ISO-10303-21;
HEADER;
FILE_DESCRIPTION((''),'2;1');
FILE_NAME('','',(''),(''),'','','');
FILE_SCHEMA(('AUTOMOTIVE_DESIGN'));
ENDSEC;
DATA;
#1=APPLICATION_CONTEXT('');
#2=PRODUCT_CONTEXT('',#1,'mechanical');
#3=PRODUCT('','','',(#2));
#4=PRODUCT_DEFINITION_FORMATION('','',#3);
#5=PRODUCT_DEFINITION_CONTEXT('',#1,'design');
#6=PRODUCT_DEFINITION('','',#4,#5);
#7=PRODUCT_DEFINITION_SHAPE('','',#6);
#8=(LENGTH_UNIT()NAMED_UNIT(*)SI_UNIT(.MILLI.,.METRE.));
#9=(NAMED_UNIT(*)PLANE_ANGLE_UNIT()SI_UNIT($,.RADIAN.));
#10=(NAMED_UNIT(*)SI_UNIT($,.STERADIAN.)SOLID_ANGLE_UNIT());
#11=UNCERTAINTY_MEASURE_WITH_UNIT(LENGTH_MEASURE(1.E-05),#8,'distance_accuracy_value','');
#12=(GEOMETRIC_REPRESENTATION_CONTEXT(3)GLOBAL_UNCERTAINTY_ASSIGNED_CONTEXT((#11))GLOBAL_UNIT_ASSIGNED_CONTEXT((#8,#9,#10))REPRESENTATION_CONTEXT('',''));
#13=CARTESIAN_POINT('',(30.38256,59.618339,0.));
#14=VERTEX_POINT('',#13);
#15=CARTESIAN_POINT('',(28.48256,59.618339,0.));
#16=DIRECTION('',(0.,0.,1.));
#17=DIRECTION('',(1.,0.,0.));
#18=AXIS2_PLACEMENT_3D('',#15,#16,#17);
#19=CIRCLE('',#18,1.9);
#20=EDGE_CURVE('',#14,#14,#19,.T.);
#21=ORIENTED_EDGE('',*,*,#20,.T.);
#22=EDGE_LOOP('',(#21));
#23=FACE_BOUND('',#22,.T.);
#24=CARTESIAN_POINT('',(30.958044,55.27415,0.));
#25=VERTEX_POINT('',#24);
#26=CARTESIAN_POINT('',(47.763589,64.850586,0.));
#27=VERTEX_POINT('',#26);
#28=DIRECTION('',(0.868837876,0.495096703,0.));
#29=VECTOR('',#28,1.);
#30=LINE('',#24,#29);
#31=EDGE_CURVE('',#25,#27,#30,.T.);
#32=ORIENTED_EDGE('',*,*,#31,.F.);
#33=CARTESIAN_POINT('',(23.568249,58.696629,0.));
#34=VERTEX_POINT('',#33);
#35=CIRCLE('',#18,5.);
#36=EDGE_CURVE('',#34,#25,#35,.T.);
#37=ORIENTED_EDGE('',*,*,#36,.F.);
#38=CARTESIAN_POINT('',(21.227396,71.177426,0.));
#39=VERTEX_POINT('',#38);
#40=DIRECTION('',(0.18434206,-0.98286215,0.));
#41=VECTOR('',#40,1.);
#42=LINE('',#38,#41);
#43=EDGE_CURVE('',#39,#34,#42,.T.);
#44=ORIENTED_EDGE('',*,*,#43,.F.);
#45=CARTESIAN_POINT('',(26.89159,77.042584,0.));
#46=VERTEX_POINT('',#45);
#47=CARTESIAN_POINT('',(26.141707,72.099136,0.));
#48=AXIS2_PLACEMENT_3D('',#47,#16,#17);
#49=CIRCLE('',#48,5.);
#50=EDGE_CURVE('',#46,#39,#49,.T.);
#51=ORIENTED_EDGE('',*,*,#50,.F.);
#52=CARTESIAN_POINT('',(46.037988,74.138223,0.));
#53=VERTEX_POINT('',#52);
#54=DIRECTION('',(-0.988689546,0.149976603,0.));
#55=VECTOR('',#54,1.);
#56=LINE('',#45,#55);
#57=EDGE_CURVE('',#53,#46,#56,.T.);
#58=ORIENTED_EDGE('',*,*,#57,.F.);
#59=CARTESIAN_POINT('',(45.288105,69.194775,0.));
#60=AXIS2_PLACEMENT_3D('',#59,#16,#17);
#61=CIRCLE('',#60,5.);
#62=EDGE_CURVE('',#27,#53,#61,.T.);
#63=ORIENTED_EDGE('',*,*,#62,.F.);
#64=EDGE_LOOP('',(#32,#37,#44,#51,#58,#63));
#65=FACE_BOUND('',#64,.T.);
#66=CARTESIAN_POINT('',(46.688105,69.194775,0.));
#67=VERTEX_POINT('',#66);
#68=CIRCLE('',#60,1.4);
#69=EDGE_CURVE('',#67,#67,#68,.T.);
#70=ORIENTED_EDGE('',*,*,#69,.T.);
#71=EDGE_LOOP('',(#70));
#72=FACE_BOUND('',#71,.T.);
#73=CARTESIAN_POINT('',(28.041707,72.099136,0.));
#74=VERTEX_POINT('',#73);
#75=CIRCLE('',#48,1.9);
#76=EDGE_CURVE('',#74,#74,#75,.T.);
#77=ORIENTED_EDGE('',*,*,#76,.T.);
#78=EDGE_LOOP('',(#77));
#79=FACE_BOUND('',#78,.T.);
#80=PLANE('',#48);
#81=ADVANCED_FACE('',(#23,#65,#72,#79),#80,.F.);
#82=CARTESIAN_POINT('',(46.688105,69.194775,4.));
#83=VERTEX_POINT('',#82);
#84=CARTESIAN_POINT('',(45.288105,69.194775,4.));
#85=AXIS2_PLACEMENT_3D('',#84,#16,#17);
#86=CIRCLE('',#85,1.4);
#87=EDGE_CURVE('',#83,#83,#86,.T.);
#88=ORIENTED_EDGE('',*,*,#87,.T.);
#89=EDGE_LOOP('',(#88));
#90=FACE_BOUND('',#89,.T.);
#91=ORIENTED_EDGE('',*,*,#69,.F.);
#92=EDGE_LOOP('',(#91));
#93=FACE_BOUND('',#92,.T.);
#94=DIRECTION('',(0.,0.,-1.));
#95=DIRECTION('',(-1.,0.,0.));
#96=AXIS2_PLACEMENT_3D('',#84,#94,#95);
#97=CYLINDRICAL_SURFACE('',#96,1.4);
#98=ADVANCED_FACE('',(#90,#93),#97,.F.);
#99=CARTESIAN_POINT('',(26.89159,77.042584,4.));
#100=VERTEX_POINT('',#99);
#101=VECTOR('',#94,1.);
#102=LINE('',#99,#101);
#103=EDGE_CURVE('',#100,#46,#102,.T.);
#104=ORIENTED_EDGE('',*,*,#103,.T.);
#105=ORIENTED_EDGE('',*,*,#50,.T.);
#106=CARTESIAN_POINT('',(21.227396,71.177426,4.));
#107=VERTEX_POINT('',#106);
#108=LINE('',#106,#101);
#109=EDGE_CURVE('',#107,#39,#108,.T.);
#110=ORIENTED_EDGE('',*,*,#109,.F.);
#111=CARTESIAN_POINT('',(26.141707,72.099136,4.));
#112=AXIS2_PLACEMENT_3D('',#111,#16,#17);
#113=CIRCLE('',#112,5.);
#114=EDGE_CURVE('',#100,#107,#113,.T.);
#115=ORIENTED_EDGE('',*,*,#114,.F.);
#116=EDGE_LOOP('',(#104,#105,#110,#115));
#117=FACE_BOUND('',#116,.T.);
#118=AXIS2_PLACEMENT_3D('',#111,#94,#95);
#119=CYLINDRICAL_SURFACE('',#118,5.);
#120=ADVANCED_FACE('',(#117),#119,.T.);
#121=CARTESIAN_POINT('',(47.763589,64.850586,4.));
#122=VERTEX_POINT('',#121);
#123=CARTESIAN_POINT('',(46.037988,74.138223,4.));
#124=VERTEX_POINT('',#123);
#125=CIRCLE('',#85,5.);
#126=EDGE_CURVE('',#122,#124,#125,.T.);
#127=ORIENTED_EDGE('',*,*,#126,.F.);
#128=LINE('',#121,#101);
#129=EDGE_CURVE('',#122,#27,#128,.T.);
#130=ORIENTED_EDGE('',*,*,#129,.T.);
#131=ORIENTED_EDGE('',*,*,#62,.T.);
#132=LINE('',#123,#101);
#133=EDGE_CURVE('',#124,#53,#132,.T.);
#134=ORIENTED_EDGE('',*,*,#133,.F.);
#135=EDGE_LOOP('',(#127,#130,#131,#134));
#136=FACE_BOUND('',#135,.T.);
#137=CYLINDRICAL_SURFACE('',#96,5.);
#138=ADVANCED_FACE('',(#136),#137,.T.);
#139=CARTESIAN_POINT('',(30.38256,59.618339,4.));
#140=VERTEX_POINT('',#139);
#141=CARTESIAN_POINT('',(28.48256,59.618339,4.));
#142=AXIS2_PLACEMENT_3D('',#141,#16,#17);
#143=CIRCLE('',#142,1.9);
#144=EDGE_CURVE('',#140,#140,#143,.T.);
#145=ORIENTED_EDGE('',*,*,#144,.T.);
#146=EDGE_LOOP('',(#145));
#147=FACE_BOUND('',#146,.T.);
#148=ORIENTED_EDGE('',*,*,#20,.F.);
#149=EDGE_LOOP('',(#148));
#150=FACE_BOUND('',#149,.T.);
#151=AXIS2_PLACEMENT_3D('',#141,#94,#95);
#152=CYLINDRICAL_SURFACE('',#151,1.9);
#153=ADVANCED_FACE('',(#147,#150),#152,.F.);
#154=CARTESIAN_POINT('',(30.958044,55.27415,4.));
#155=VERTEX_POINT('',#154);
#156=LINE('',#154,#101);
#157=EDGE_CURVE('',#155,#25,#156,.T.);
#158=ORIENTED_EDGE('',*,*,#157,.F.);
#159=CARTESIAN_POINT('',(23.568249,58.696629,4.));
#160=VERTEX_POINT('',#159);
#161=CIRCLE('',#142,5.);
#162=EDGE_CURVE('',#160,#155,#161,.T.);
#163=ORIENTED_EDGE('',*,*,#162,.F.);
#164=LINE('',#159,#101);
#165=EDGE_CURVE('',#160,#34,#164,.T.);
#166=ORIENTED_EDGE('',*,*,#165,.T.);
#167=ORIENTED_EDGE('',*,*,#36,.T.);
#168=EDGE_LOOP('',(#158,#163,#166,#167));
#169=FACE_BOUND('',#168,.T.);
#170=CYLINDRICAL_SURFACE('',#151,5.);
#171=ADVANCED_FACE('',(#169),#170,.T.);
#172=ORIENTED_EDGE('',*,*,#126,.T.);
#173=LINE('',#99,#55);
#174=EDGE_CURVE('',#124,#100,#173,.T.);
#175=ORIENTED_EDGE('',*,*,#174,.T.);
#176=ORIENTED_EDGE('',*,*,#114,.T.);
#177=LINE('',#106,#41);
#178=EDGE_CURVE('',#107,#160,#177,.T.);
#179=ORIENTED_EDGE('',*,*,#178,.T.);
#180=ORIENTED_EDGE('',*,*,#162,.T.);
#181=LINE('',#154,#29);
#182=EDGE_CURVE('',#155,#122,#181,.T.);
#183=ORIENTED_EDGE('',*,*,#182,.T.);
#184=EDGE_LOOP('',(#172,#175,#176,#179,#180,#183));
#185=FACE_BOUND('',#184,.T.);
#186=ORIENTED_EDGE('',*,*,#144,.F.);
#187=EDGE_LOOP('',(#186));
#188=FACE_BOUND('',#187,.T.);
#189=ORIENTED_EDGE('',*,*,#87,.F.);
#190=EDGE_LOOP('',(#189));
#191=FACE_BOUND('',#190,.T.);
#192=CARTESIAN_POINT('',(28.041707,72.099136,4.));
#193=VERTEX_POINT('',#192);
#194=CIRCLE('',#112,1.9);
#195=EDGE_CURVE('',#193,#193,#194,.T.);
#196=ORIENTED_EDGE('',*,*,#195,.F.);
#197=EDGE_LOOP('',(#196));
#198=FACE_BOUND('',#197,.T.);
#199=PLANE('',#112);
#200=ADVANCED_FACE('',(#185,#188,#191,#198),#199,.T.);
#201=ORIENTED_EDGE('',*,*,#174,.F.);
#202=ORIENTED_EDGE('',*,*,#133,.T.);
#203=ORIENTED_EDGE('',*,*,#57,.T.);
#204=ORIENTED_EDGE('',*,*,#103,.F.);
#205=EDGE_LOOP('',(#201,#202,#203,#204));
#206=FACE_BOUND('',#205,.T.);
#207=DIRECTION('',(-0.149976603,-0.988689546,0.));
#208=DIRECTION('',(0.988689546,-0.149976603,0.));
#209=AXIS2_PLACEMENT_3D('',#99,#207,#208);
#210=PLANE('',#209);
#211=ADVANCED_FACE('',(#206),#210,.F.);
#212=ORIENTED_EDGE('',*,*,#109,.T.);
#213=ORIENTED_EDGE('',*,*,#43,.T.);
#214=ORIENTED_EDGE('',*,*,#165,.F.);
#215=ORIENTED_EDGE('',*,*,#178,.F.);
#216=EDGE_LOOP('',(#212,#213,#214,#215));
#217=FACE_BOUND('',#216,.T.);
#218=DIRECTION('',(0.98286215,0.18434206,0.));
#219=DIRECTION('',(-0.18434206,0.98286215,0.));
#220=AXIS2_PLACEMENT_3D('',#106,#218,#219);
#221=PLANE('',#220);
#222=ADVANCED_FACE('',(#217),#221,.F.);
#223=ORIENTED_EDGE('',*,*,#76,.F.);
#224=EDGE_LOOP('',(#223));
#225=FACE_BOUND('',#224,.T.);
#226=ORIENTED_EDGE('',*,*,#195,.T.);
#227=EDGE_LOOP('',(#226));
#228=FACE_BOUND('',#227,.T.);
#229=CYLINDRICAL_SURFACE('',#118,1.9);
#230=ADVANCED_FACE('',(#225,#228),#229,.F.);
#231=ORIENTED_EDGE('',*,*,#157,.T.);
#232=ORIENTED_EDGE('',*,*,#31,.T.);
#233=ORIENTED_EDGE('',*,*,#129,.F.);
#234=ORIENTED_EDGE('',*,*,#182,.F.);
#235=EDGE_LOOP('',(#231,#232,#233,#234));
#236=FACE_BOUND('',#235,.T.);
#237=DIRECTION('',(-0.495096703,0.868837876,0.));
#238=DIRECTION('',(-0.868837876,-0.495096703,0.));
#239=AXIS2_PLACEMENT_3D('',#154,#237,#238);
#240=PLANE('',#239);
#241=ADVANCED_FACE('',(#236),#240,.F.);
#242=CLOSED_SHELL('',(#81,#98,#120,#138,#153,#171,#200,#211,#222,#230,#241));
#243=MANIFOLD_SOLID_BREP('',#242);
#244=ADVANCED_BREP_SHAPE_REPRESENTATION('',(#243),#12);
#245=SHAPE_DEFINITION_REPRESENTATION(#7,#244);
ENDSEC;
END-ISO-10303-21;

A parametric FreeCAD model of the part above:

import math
import FreeCAD as App
import Part
import Sketcher

doc = App.newDocument("Part")
body = doc.addObject("PartDesign::Body", "Body")

# Sketch on XY plane
sketch1 = doc.addObject("Sketcher::SketchObject", "Sketch")
body.addObject(sketch1)
sketch1.AttachmentSupport = (doc.XY_Plane, [""])
sketch1.MapMode = "FlatFace"
sketch1.addGeometry(Part.LineSegment(App.Vector(46, 74.1, 0), App.Vector(26.9, 77, 0)), False)
sketch1.addGeometry(Part.ArcOfCircle(Part.Circle(App.Vector(26.1, 72.1, 0), App.Vector(0, 0, 1), 5), math.radians(81), math.radians(191)), False)
sketch1.addGeometry(Part.LineSegment(App.Vector(21.2, 71.2, 0), App.Vector(23.6, 58.7, 0)), False)
sketch1.addGeometry(Part.ArcOfCircle(Part.Circle(App.Vector(28.5, 59.6, 0), App.Vector(0, 0, 1), 5), math.radians(-169), math.radians(-60)), False)
sketch1.addGeometry(Part.LineSegment(App.Vector(31, 55.3, 0), App.Vector(47.8, 64.9, 0)), False)
sketch1.addGeometry(Part.ArcOfCircle(Part.Circle(App.Vector(45.3, 69.2, 0), App.Vector(0, 0, 1), 5), math.radians(-60), math.radians(81)), False)
sketch1.addGeometry(Part.Circle(App.Vector(28.5, 59.6, 0), App.Vector(0, 0, 1), 1.9), False)
sketch1.addGeometry(Part.Circle(App.Vector(45.3, 69.2, 0), App.Vector(0, 0, 1), 1.4), False)
sketch1.addGeometry(Part.Circle(App.Vector(26.1, 72.1, 0), App.Vector(0, 0, 1), 1.9), False)
sketch1.addConstraint(Sketcher.Constraint("Tangent", 0, 2, 1, 1))
sketch1.addConstraint(Sketcher.Constraint("Tangent", 1, 2, 2, 1))
sketch1.addConstraint(Sketcher.Constraint("Tangent", 2, 2, 3, 1))
sketch1.addConstraint(Sketcher.Constraint("Tangent", 3, 2, 4, 1))
sketch1.addConstraint(Sketcher.Constraint("Tangent", 4, 2, 5, 1))
sketch1.addConstraint(Sketcher.Constraint("Tangent", 5, 2, 0, 1))
sketch1.addConstraint(Sketcher.Constraint("Coincident", 6, 3, 3, 3))
sketch1.addConstraint(Sketcher.Constraint("Coincident", 7, 3, 5, 3))
sketch1.addConstraint(Sketcher.Constraint("Coincident", 8, 3, 1, 3))
sketch1.addConstraint(Sketcher.Constraint("Equal", 1, 3))
sketch1.addConstraint(Sketcher.Constraint("Equal", 3, 5))
sketch1.addConstraint(Sketcher.Constraint("Equal", 6, 8))
sketch1.addConstraint(Sketcher.Constraint("Radius", 1, 5.0))
sketch1.addConstraint(Sketcher.Constraint("Diameter", 6, 3.8))
sketch1.addConstraint(Sketcher.Constraint("Diameter", 7, 2.8))
sketch1.addConstraint(Sketcher.Constraint("DistanceX", 1, 3, 5, 3, 19.146398))
sketch1.addConstraint(Sketcher.Constraint("DistanceX", 5, 2, 4, 2, 1.725601))
sketch1.addConstraint(Sketcher.Constraint("Distance", 0, 19.36543))
sketch1.addConstraint(Sketcher.Constraint("Distance", 2, 12.698421))
sketch1.addConstraint(Sketcher.Constraint("DistanceX", -1, 1, 3, 3, 28.48256))
sketch1.addConstraint(Sketcher.Constraint("DistanceY", -1, 1, 3, 3, 59.618339))
pad1 = doc.addObject("PartDesign::Pad", "Pad")
body.addObject(pad1)
pad1.Profile = sketch1
pad1.Length = 4

doc.recompute()
